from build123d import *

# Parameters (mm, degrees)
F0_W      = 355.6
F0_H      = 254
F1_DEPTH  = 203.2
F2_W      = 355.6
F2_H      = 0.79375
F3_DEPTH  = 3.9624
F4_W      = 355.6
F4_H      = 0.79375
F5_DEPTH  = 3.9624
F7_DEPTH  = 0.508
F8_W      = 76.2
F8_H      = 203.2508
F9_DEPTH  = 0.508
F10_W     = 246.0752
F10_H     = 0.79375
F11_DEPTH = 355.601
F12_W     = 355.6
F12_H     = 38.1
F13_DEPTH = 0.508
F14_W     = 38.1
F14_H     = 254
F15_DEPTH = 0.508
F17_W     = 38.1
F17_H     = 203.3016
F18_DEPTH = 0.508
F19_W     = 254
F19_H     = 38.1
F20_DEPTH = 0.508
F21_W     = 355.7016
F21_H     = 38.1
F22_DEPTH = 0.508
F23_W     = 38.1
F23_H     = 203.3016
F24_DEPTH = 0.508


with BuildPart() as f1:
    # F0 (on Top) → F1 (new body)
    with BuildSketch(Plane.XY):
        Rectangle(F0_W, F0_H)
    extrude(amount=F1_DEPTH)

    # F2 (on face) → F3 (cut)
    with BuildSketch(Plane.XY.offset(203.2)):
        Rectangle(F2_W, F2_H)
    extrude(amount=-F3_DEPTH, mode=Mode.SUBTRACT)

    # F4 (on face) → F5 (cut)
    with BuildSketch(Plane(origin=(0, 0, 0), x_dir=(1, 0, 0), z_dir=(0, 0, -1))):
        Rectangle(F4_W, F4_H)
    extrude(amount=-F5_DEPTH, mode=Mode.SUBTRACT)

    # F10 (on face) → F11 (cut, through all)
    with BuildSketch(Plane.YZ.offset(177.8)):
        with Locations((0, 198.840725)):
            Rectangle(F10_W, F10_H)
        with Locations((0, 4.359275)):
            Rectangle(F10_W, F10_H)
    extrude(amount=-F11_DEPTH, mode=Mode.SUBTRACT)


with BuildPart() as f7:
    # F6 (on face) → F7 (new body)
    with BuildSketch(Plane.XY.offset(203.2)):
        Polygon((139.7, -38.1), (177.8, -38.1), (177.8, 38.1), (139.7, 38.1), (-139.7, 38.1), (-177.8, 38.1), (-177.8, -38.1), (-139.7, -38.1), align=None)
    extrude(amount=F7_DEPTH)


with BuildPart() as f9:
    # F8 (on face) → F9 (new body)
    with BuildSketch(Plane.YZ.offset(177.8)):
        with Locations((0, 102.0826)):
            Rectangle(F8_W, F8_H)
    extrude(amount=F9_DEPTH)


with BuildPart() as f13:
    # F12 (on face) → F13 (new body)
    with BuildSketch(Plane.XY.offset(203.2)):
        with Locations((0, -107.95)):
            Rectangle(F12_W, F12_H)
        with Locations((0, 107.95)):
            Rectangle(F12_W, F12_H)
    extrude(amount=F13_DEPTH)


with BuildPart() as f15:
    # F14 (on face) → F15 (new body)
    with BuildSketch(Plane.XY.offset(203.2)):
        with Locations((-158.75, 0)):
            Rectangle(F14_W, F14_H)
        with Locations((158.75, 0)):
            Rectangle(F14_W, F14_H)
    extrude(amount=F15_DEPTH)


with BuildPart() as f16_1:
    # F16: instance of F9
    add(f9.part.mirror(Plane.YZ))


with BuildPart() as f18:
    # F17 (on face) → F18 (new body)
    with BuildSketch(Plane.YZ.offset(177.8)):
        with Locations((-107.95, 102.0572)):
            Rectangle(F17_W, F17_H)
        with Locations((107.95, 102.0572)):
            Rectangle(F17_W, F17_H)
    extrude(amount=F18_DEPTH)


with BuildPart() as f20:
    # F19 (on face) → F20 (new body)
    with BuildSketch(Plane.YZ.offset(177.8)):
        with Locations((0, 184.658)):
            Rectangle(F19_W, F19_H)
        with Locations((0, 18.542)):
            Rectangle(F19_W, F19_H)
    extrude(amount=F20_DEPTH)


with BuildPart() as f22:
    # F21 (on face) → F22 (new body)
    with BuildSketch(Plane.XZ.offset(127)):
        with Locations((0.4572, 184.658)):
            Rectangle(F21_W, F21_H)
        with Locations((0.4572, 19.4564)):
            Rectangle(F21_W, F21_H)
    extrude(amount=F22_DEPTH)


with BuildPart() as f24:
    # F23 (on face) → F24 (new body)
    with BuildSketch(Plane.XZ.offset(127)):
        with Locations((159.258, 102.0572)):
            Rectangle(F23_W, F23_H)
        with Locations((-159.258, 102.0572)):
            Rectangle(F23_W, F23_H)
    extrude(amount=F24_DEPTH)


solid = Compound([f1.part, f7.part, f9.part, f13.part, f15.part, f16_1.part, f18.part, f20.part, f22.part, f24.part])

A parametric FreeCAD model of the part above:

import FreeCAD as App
import Part
import Sketcher
from FreeCAD import Vector
Q = App.Units.Quantity


def add_polygon(sketch, points):
    """Adds a closed chain of lines whose ends are joined by coincident constraints."""
    first, n = sketch.GeometryCount, len(points)
    for a, b in zip(points, points[1:] + points[:1]):
        sketch.addGeometry(Part.LineSegment(App.Vector(*a, 0), App.Vector(*b, 0)), False)
    for i in range(n):
        sketch.addConstraint(Sketcher.Constraint("Coincident", first + i, 2, first + (i + 1) % n, 1))

doc = App.newDocument("Part")
body = doc.addObject("PartDesign::Body", "Body")

# Sketch on XY plane
sketch1 = body.newObject("Sketcher::SketchObject", "Sketch")
sketch1.AttachmentSupport = (doc.getObject("XY_Plane"), [""])
sketch1.MapMode = "FlatFace"
add_polygon(sketch1, [(-177.8, 127), (-177.8, -127), (177.8, -127), (177.8, 127)])  # lines 0-3
sketch1.addConstraint(Sketcher.Constraint("Vertical", 0))
sketch1.addConstraint(Sketcher.Constraint("Horizontal", 1))
sketch1.addConstraint(Sketcher.Constraint("Vertical", 2))
sketch1.addConstraint(Sketcher.Constraint("Horizontal", 3))
sketch1.addConstraint(Sketcher.Constraint("Symmetric", 0, 2, 2, 2, -1, 1))
sketch1.addConstraint(Sketcher.Constraint("DistanceX", 1, 1, 1, 2, Q("14 in")))
sketch1.addConstraint(Sketcher.Constraint("DistanceY", 0, 2, 0, 1, Q("10 in")))
pad1 = body.newObject("PartDesign::Pad", "Pad")
pad1.Profile = sketch1
pad1.Length = Q("8 in")

# Sketch on XY plane
sketch2 = body.newObject("Sketcher::SketchObject", "Sketch001")
sketch2.AttachmentSupport = (doc.getObject("XY_Plane"), [""])
sketch2.MapMode = "FlatFace"
sketch2.AttachmentOffset = App.Placement(Vector(0, 0, 8 * 25.4), App.Rotation())
add_polygon(sketch2, [(-177.8, 0.396875), (-177.8, -0.396875), (177.8, -0.396875), (177.8, 0.396875)])  # lines 0-3
sketch2.addConstraint(Sketcher.Constraint("Vertical", 0))
sketch2.addConstraint(Sketcher.Constraint("Horizontal", 1))
sketch2.addConstraint(Sketcher.Constraint("Vertical", 2))
sketch2.addConstraint(Sketcher.Constraint("Horizontal", 3))
sketch2.addConstraint(Sketcher.Constraint("Symmetric", 0, 2, 2, 2, -1, 1))
sketch2.addConstraint(Sketcher.Constraint("DistanceX", 1, 1, 1, 2, Q("14 in")))
sketch2.addConstraint(Sketcher.Constraint("DistanceY", 0, 2, 0, 1, Q("0.03125 in")))
pocket1 = body.newObject("PartDesign::Pocket", "Pocket")
pocket1.Profile = sketch2
pocket1.Length = Q("0.156 in")

# Sketch on XY plane
sketch3 = body.newObject("Sketcher::SketchObject", "Sketch002")
sketch3.AttachmentSupport = (doc.getObject("XY_Plane"), [""])
sketch3.MapMode = "FlatFace"
add_polygon(sketch3, [(-177.8, -0.396875), (-177.8, 0.396875), (177.8, 0.396875), (177.8, -0.396875)])  # lines 0-3
sketch3.addConstraint(Sketcher.Constraint("Vertical", 0))
sketch3.addConstraint(Sketcher.Constraint("Horizontal", 1))
sketch3.addConstraint(Sketcher.Constraint("Vertical", 2))
sketch3.addConstraint(Sketcher.Constraint("Horizontal", 3))
sketch3.addConstraint(Sketcher.Constraint("Symmetric", 0, 2, 2, 2, -1, 1))
sketch3.addConstraint(Sketcher.Constraint("DistanceX", 1, 1, 1, 2, Q("14 in")))
sketch3.addConstraint(Sketcher.Constraint("DistanceY", 0, 1, 0, 2, Q("0.03125 in")))
pocket2 = body.newObject("PartDesign::Pocket", "Pocket001")
pocket2.Profile = sketch3
pocket2.Length = Q("0.156 in")
pocket2.Reversed = True

# Sketch on YZ plane
sketch4 = body.newObject("Sketcher::SketchObject", "Sketch003")
sketch4.AttachmentSupport = (doc.getObject("YZ_Plane"), [""])
sketch4.MapMode = "FlatFace"
sketch4.AttachmentOffset = App.Placement(Vector(0, 0, 7 * 25.4), App.Rotation())
add_polygon(sketch4, [(-123.0376, 199.2376), (-123.0376, 198.44385), (123.0376, 198.44385), (123.0376, 199.2376)])  # lines 0-3
add_polygon(sketch4, [(-123.0376, 4.75615), (-123.0376, 3.9624), (123.0376, 3.9624), (123.0376, 4.75615)])  # lines 4-7
sketch4.addConstraint(Sketcher.Constraint("Vertical", 0))
sketch4.addConstraint(Sketcher.Constraint("Horizontal", 1))
sketch4.addConstraint(Sketcher.Constraint("Vertical", 2))
sketch4.addConstraint(Sketcher.Constraint("Horizontal", 3))
sketch4.addConstraint(Sketcher.Constraint("Vertical", 4))
sketch4.addConstraint(Sketcher.Constraint("Horizontal", 5))
sketch4.addConstraint(Sketcher.Constraint("Vertical", 6))
sketch4.addConstraint(Sketcher.Constraint("Horizontal", 7))
sketch4.addConstraint(Sketcher.Constraint("Vertical", 3, 2, 4, 2))
sketch4.addConstraint(Sketcher.Constraint("Vertical", 2, 2, 5, 2))
sketch4.addConstraint(Sketcher.Constraint("Equal", 2, 4))
sketch4.addConstraint(Sketcher.Constraint("DistanceX", 1, 1, 1, 2, Q("9.688 in")))
sketch4.addConstraint(Sketcher.Constraint("DistanceY", 0, 2, 0, 1, Q("0.03125 in")))
sketch4.addConstraint(Sketcher.Constraint("DistanceX", 0, 2, -1, 1, Q("4.844 in")))
sketch4.addConstraint(Sketcher.Constraint("DistanceY", -1, 1, 2, 2, Q("7.844 in")))
sketch4.addConstraint(Sketcher.Constraint("DistanceY", -1, 1, 4, 2, Q("0.156 in")))
pocket3 = body.newObject("PartDesign::Pocket", "Pocket002")
pocket3.Profile = sketch4
pocket3.Type = "ThroughAll"
body2 = doc.addObject("PartDesign::Body", "Body001")

# Sketch on XY plane
sketch5 = body2.newObject("Sketcher::SketchObject", "Sketch004")
sketch5.AttachmentSupport = (doc.getObject("XY_Plane001"), [""])
sketch5.MapMode = "FlatFace"
sketch5.AttachmentOffset = App.Placement(Vector(0, 0, 8 * 25.4), App.Rotation())
add_polygon(sketch5, [(177.8, -38.1), (177.8, 38.1), (-177.8, 38.1), (-177.8, -38.1)])  # lines 0-3
sketch5.addConstraint(Sketcher.Constraint("Vertical", 0))
sketch5.addConstraint(Sketcher.Constraint("Horizontal", 1))
sketch5.addConstraint(Sketcher.Constraint("Vertical", 2))
sketch5.addConstraint(Sketcher.Constraint("Horizontal", 3))
sketch5.addConstraint(Sketcher.Constraint("Symmetric", 0, 2, 2, 2, -1, 1))
sketch5.addConstraint(Sketcher.Constraint("DistanceX", 1, 2, 1, 1, Q("14 in")))
sketch5.addConstraint(Sketcher.Constraint("DistanceY", 0, 1, 0, 2, Q("3 in")))
pad2 = body2.newObject("PartDesign::Pad", "Pad001")
pad2.Profile = sketch5
pad2.Length = Q("0.02 in")
body3 = doc.addObject("PartDesign::Body", "Body002")

# Sketch on YZ plane
sketch6 = body3.newObject("Sketcher::SketchObject", "Sketch005")
sketch6.AttachmentSupport = (doc.getObject("YZ_Plane002"), [""])
sketch6.MapMode = "FlatFace"
sketch6.AttachmentOffset = App.Placement(Vector(0, 0, 7 * 25.4), App.Rotation())
add_polygon(sketch6, [(-38.1, 203.708), (-38.1, 0.4572), (38.1, 0.4572), (38.1, 203.708)])  # lines 0-3
sketch6.addConstraint(Sketcher.Constraint("Vertical", 0))
sketch6.addConstraint(Sketcher.Constraint("Horizontal", 1))
sketch6.addConstraint(Sketcher.Constraint("Vertical", 2))
sketch6.addConstraint(Sketcher.Constraint("Horizontal", 3))
sketch6.addConstraint(Sketcher.Constraint("DistanceX", 1, 1, 1, 2, Q("3 in")))
sketch6.addConstraint(Sketcher.Constraint("DistanceX", 0, 2, -1, 1, Q("1.5 in")))
sketch6.addConstraint(Sketcher.Constraint("DistanceY", 0, 2, 0, 1, Q("8.002 in")))
sketch6.addConstraint(Sketcher.Constraint("DistanceY", -1, 1, 2, 2, Q("8.02 in")))
pad3 = body3.newObject("PartDesign::Pad", "Pad002")
pad3.Profile = sketch6
pad3.Length = Q("0.02 in")
body4 = doc.addObject("PartDesign::Body", "Body003")
body4.AllowCompound = True

# Sketch on XY plane
sketch7 = body4.newObject("Sketcher::SketchObject", "Sketch006")
sketch7.AttachmentSupport = (doc.getObject("XY_Plane003"), [""])
sketch7.MapMode = "FlatFace"
sketch7.AttachmentOffset = App.Placement(Vector(0, 0, 8 * 25.4), App.Rotation())
add_polygon(sketch7, [(-177.8, -88.9), (-177.8, -127), (177.8, -127), (177.8, -88.9)])  # lines 0-3
add_polygon(sketch7, [(-177.8, 127), (-177.8, 88.9), (177.8, 88.9), (177.8, 127)])  # lines 4-7
sketch7.addConstraint(Sketcher.Constraint("Vertical", 0))
sketch7.addConstraint(Sketcher.Constraint("Horizontal", 1))
sketch7.addConstraint(Sketcher.Constraint("Vertical", 2))
sketch7.addConstraint(Sketcher.Constraint("Horizontal", 3))
sketch7.addConstraint(Sketcher.Constraint("Vertical", 4))
sketch7.addConstraint(Sketcher.Constraint("Horizontal", 5))
sketch7.addConstraint(Sketcher.Constraint("Vertical", 6))
sketch7.addConstraint(Sketcher.Constraint("Horizontal", 7))
sketch7.addConstraint(Sketcher.Constraint("Symmetric", 2, 2, 4, 2, -1, 1))
sketch7.addConstraint(Sketcher.Constraint("Symmetric", 0, 2, 6, 2, -1, 1))
sketch7.addConstraint(Sketcher.Constraint("Vertical", 3, 2, 4, 2))
sketch7.addConstraint(Sketcher.Constraint("DistanceX", 1, 1, 1, 2, Q("14 in")))
sketch7.addConstraint(Sketcher.Constraint("DistanceY", 0, 2, 0, 1, Q("1.5 in")))
sketch7.addConstraint(Sketcher.Constraint("DistanceY", 0, 2, -1, 1, Q("5 in")))
pad4 = body4.newObject("PartDesign::Pad", "Pad003")
pad4.Profile = sketch7
pad4.Length = Q("0.02 in")
body5 = doc.addObject("PartDesign::Body", "Body004")
body5.AllowCompound = True

# Sketch on XY plane
sketch8 = body5.newObject("Sketcher::SketchObject", "Sketch007")
sketch8.AttachmentSupport = (doc.getObject("XY_Plane004"), [""])
sketch8.MapMode = "FlatFace"
sketch8.AttachmentOffset = App.Placement(Vector(0, 0, 8 * 25.4), App.Rotation())
add_polygon(sketch8, [(-177.8, 127), (-177.8, -127), (-139.7, -127), (-139.7, 127)])  # lines 0-3
add_polygon(sketch8, [(139.7, 127), (139.7, -127), (177.8, -127), (177.8, 127)])  # lines 4-7
sketch8.addConstraint(Sketcher.Constraint("Vertical", 0))
sketch8.addConstraint(Sketcher.Constraint("Horizontal", 1))
sketch8.addConstraint(Sketcher.Constraint("Vertical", 2))
sketch8.addConstraint(Sketcher.Constraint("Horizontal", 3))
sketch8.addConstraint(Sketcher.Constraint("Vertical", 4))
sketch8.addConstraint(Sketcher.Constraint("Horizontal", 5))
sketch8.addConstraint(Sketcher.Constraint("Vertical", 6))
sketch8.addConstraint(Sketcher.Constraint("Horizontal", 7))
sketch8.addConstraint(Sketcher.Constraint("Symmetric", 2, 2, 4, 2, -1, 1))
sketch8.addConstraint(Sketcher.Constraint("Symmetric", 0, 2, 6, 2, -1, 1))
sketch8.addConstraint(Sketcher.Constraint("Horizontal", 1, 2, 4, 2))
sketch8.addConstraint(Sketcher.Constraint("DistanceY", 0, 2, 0, 1, Q("10 in")))
sketch8.addConstraint(Sketcher.Constraint("DistanceX", 1, 1, 1, 2, Q("1.5 in")))
sketch8.addConstraint(Sketcher.Constraint("DistanceX", 0, 2, -1, 1, Q("7 in")))
pad5 = body5.newObject("PartDesign::Pad", "Pad004")
pad5.Profile = sketch8
pad5.Length = Q("0.02 in")
body6 = doc.addObject("PartDesign::Body", "Body005")
doc.recompute()

mirroring = doc.addObject("Part::Mirroring", "Mirroring")
mirroring.Source = body3
mirroring.Base = Vector(0, 0, 0)
mirroring.Normal = Vector(1, 0, 0)
body6.BaseFeature = mirroring
doc.recompute()
body7 = doc.addObject("PartDesign::Body", "Body006")
body7.AllowCompound = True

# Sketch on YZ plane
sketch9 = body7.newObject("Sketcher::SketchObject", "Sketch008")
sketch9.AttachmentSupport = (doc.getObject("YZ_Plane006"), [""])
sketch9.MapMode = "FlatFace"
sketch9.AttachmentOffset = App.Placement(Vector(0, 0, 7 * 25.4), App.Rotation())
add_polygon(sketch9, [(-127, 203.708), (-127, 0.4064), (-88.9, 0.4064), (-88.9, 203.708)])  # lines 0-3
add_polygon(sketch9, [(88.9, 203.708), (88.9, 0.4064), (127, 0.4064), (127, 203.708)])  # lines 4-7
sketch9.addConstraint(Sketcher.Constraint("Vertical", 0))
sketch9.addConstraint(Sketcher.Constraint("Horizontal", 1))
sketch9.addConstraint(Sketcher.Constraint("Vertical", 2))
sketch9.addConstraint(Sketcher.Constraint("Horizontal", 3))
sketch9.addConstraint(Sketcher.Constraint("Vertical", 4))
sketch9.addConstraint(Sketcher.Constraint("Horizontal", 5))
sketch9.addConstraint(Sketcher.Constraint("Vertical", 6))
sketch9.addConstraint(Sketcher.Constraint("Horizontal", 7))
sketch9.addConstraint(Sketcher.Constraint("Symmetric", 1, 2, 4, 2, -2))
sketch9.addConstraint(Sketcher.Constraint("Symmetric", 3, 2, 6, 2, -2))
sketch9.addConstraint(Sketcher.Constraint("DistanceX", 1, 1, 1, 2, Q("1.5 in")))
sketch9.addConstraint(Sketcher.Constraint("DistanceX", 0, 2, -1, 1, Q("5 in")))
sketch9.addConstraint(Sketcher.Constraint("DistanceY", 0, 2, 0, 1, Q("8.004 in")))
sketch9.addConstraint(Sketcher.Constraint("DistanceY", -1, 1, 2, 2, Q("8.02 in")))
pad6 = body7.newObject("PartDesign::Pad", "Pad005")
pad6.Profile = sketch9
pad6.Length = Q("0.02 in")
body8 = doc.addObject("PartDesign::Body", "Body007")
body8.AllowCompound = True

# Sketch on YZ plane
sketch10 = body8.newObject("Sketcher::SketchObject", "Sketch009")
sketch10.AttachmentSupport = (doc.getObject("YZ_Plane007"), [""])
sketch10.MapMode = "FlatFace"
sketch10.AttachmentOffset = App.Placement(Vector(0, 0, 7 * 25.4), App.Rotation())
add_polygon(sketch10, [(-127, 203.708), (-127, 165.608), (127, 165.608), (127, 203.708)])  # lines 0-3
add_polygon(sketch10, [(-127, 37.592), (-127, -0.508), (127, -0.508), (127, 37.592)])  # lines 4-7
sketch10.addConstraint(Sketcher.Constraint("Vertical", 0))
sketch10.addConstraint(Sketcher.Constraint("Horizontal", 1))
sketch10.addConstraint(Sketcher.Constraint("Vertical", 2))
sketch10.addConstraint(Sketcher.Constraint("Horizontal", 3))
sketch10.addConstraint(Sketcher.Constraint("Vertical", 4))
sketch10.addConstraint(Sketcher.Constraint("Horizontal", 5))
sketch10.addConstraint(Sketcher.Constraint("Vertical", 6))
sketch10.addConstraint(Sketcher.Constraint("Horizontal", 7))
sketch10.addConstraint(Sketcher.Constraint("Vertical", 3, 2, 4, 2))
sketch10.addConstraint(Sketcher.Constraint("Vertical", 2, 2, 5, 2))
sketch10.addConstraint(Sketcher.Constraint("Equal", 2, 4))
sketch10.addConstraint(Sketcher.Constraint("DistanceX", 1, 1, 1, 2, Q("10 in")))
sketch10.addConstraint(Sketcher.Constraint("DistanceY", 0, 2, 0, 1, Q("1.5 in")))
sketch10.addConstraint(Sketcher.Constraint("DistanceX", 0, 2, -1, 1, Q("5 in")))
sketch10.addConstraint(Sketcher.Constraint("DistanceY", -1, 1, 0, 2, Q("6.52 in")))
sketch10.addConstraint(Sketcher.Constraint("DistanceY", 4, 2, -1, 1, Q("0.02 in")))
pad7 = body8.newObject("PartDesign::Pad", "Pad006")
pad7.Profile = sketch10
pad7.Length = Q("0.02 in")
body9 = doc.addObject("PartDesign::Body", "Body008")
body9.AllowCompound = True

# Sketch on XZ plane
sketch11 = body9.newObject("Sketcher::SketchObject", "Sketch010")
sketch11.AttachmentSupport = (doc.getObject("XZ_Plane008"), [""])
sketch11.MapMode = "FlatFace"
sketch11.AttachmentOffset = App.Placement(Vector(0, 0, 5 * 25.4), App.Rotation())
add_polygon(sketch11, [(-177.3936, 203.708), (-177.3936, 165.608), (178.308, 165.608), (178.308, 203.708)])  # lines 0-3
add_polygon(sketch11, [(-177.3936, 38.5064), (-177.3936, 0.4064), (178.308, 0.4064), (178.308, 38.5064)])  # lines 4-7
sketch11.addConstraint(Sketcher.Constraint("Vertical", 0))
sketch11.addConstraint(Sketcher.Constraint("Horizontal", 1))
sketch11.addConstraint(Sketcher.Constraint("Vertical", 2))
sketch11.addConstraint(Sketcher.Constraint("Horizontal", 3))
sketch11.addConstraint(Sketcher.Constraint("Vertical", 4))
sketch11.addConstraint(Sketcher.Constraint("Horizontal", 5))
sketch11.addConstraint(Sketcher.Constraint("Vertical", 6))
sketch11.addConstraint(Sketcher.Constraint("Horizontal", 7))
sketch11.addConstraint(Sketcher.Constraint("Vertical", 3, 2, 4, 2))
sketch11.addConstraint(Sketcher.Constraint("Vertical", 2, 2, 5, 2))
sketch11.addConstraint(Sketcher.Constraint("Equal", 2, 4))
sketch11.addConstraint(Sketcher.Constraint("DistanceY", 0, 2, 0, 1, Q("1.5 in")))
sketch11.addConstraint(Sketcher.Constraint("DistanceX", 1, 1, 1, 2, Q("14.004 in")))
sketch11.addConstraint(Sketcher.Constraint("DistanceY", -1, 1, 0, 2, Q("6.52 in")))
sketch11.addConstraint(Sketcher.Constraint("DistanceX", -1, 1, 1, 2, Q("7.02 in")))
sketch11.addConstraint(Sketcher.Constraint("DistanceY", -1, 1, 4, 2, Q("0.016 in")))
pad8 = body9.newObject("PartDesign::Pad", "Pad007")
pad8.Profile = sketch11
pad8.Length = Q("0.02 in")
body10 = doc.addObject("PartDesign::Body", "Body009")
body10.AllowCompound = True

# Sketch on XZ plane
sketch12 = body10.newObject("Sketcher::SketchObject", "Sketch011")
sketch12.AttachmentSupport = (doc.getObject("XZ_Plane009"), [""])
sketch12.MapMode = "FlatFace"
sketch12.AttachmentOffset = App.Placement(Vector(0, 0, 5 * 25.4), App.Rotation())
add_polygon(sketch12, [(140.208, 203.708), (140.208, 0.4064), (178.308, 0.4064), (178.308, 203.708)])  # lines 0-3
add_polygon(sketch12, [(-178.308, 203.708), (-178.308, 0.4064), (-140.208, 0.4064), (-140.208, 203.708)])  # lines 4-7
sketch12.addConstraint(Sketcher.Constraint("Vertical", 0))
sketch12.addConstraint(Sketcher.Constraint("Horizontal", 1))
sketch12.addConstraint(Sketcher.Constraint("Vertical", 2))
sketch12.addConstraint(Sketcher.Constraint("Horizontal", 3))
sketch12.addConstraint(Sketcher.Constraint("Vertical", 4))
sketch12.addConstraint(Sketcher.Constraint("Horizontal", 5))
sketch12.addConstraint(Sketcher.Constraint("Vertical", 6))
sketch12.addConstraint(Sketcher.Constraint("Horizontal", 7))
sketch12.addConstraint(Sketcher.Constraint("Symmetric", 1, 2, 4, 2, -2))
sketch12.addConstraint(Sketcher.Constraint("Symmetric", 3, 2, 6, 2, -2))
sketch12.addConstraint(Sketcher.Constraint("DistanceX", 1, 1, 1, 2, Q("1.5 in")))
sketch12.addConstraint(Sketcher.Constraint("DistanceY", 0, 2, 0, 1, Q("8.004 in")))
sketch12.addConstraint(Sketcher.Constraint("DistanceX", -1, 1, 0, 2, Q("5.52 in")))
sketch12.addConstraint(Sketcher.Constraint("DistanceY", -1, 1, 2, 2, Q("8.02 in")))
pad9 = body10.newObject("PartDesign::Pad", "Pad008")
pad9.Profile = sketch12
pad9.Length = Q("0.02 in")
mirroring.Visibility = False

doc.recompute()
